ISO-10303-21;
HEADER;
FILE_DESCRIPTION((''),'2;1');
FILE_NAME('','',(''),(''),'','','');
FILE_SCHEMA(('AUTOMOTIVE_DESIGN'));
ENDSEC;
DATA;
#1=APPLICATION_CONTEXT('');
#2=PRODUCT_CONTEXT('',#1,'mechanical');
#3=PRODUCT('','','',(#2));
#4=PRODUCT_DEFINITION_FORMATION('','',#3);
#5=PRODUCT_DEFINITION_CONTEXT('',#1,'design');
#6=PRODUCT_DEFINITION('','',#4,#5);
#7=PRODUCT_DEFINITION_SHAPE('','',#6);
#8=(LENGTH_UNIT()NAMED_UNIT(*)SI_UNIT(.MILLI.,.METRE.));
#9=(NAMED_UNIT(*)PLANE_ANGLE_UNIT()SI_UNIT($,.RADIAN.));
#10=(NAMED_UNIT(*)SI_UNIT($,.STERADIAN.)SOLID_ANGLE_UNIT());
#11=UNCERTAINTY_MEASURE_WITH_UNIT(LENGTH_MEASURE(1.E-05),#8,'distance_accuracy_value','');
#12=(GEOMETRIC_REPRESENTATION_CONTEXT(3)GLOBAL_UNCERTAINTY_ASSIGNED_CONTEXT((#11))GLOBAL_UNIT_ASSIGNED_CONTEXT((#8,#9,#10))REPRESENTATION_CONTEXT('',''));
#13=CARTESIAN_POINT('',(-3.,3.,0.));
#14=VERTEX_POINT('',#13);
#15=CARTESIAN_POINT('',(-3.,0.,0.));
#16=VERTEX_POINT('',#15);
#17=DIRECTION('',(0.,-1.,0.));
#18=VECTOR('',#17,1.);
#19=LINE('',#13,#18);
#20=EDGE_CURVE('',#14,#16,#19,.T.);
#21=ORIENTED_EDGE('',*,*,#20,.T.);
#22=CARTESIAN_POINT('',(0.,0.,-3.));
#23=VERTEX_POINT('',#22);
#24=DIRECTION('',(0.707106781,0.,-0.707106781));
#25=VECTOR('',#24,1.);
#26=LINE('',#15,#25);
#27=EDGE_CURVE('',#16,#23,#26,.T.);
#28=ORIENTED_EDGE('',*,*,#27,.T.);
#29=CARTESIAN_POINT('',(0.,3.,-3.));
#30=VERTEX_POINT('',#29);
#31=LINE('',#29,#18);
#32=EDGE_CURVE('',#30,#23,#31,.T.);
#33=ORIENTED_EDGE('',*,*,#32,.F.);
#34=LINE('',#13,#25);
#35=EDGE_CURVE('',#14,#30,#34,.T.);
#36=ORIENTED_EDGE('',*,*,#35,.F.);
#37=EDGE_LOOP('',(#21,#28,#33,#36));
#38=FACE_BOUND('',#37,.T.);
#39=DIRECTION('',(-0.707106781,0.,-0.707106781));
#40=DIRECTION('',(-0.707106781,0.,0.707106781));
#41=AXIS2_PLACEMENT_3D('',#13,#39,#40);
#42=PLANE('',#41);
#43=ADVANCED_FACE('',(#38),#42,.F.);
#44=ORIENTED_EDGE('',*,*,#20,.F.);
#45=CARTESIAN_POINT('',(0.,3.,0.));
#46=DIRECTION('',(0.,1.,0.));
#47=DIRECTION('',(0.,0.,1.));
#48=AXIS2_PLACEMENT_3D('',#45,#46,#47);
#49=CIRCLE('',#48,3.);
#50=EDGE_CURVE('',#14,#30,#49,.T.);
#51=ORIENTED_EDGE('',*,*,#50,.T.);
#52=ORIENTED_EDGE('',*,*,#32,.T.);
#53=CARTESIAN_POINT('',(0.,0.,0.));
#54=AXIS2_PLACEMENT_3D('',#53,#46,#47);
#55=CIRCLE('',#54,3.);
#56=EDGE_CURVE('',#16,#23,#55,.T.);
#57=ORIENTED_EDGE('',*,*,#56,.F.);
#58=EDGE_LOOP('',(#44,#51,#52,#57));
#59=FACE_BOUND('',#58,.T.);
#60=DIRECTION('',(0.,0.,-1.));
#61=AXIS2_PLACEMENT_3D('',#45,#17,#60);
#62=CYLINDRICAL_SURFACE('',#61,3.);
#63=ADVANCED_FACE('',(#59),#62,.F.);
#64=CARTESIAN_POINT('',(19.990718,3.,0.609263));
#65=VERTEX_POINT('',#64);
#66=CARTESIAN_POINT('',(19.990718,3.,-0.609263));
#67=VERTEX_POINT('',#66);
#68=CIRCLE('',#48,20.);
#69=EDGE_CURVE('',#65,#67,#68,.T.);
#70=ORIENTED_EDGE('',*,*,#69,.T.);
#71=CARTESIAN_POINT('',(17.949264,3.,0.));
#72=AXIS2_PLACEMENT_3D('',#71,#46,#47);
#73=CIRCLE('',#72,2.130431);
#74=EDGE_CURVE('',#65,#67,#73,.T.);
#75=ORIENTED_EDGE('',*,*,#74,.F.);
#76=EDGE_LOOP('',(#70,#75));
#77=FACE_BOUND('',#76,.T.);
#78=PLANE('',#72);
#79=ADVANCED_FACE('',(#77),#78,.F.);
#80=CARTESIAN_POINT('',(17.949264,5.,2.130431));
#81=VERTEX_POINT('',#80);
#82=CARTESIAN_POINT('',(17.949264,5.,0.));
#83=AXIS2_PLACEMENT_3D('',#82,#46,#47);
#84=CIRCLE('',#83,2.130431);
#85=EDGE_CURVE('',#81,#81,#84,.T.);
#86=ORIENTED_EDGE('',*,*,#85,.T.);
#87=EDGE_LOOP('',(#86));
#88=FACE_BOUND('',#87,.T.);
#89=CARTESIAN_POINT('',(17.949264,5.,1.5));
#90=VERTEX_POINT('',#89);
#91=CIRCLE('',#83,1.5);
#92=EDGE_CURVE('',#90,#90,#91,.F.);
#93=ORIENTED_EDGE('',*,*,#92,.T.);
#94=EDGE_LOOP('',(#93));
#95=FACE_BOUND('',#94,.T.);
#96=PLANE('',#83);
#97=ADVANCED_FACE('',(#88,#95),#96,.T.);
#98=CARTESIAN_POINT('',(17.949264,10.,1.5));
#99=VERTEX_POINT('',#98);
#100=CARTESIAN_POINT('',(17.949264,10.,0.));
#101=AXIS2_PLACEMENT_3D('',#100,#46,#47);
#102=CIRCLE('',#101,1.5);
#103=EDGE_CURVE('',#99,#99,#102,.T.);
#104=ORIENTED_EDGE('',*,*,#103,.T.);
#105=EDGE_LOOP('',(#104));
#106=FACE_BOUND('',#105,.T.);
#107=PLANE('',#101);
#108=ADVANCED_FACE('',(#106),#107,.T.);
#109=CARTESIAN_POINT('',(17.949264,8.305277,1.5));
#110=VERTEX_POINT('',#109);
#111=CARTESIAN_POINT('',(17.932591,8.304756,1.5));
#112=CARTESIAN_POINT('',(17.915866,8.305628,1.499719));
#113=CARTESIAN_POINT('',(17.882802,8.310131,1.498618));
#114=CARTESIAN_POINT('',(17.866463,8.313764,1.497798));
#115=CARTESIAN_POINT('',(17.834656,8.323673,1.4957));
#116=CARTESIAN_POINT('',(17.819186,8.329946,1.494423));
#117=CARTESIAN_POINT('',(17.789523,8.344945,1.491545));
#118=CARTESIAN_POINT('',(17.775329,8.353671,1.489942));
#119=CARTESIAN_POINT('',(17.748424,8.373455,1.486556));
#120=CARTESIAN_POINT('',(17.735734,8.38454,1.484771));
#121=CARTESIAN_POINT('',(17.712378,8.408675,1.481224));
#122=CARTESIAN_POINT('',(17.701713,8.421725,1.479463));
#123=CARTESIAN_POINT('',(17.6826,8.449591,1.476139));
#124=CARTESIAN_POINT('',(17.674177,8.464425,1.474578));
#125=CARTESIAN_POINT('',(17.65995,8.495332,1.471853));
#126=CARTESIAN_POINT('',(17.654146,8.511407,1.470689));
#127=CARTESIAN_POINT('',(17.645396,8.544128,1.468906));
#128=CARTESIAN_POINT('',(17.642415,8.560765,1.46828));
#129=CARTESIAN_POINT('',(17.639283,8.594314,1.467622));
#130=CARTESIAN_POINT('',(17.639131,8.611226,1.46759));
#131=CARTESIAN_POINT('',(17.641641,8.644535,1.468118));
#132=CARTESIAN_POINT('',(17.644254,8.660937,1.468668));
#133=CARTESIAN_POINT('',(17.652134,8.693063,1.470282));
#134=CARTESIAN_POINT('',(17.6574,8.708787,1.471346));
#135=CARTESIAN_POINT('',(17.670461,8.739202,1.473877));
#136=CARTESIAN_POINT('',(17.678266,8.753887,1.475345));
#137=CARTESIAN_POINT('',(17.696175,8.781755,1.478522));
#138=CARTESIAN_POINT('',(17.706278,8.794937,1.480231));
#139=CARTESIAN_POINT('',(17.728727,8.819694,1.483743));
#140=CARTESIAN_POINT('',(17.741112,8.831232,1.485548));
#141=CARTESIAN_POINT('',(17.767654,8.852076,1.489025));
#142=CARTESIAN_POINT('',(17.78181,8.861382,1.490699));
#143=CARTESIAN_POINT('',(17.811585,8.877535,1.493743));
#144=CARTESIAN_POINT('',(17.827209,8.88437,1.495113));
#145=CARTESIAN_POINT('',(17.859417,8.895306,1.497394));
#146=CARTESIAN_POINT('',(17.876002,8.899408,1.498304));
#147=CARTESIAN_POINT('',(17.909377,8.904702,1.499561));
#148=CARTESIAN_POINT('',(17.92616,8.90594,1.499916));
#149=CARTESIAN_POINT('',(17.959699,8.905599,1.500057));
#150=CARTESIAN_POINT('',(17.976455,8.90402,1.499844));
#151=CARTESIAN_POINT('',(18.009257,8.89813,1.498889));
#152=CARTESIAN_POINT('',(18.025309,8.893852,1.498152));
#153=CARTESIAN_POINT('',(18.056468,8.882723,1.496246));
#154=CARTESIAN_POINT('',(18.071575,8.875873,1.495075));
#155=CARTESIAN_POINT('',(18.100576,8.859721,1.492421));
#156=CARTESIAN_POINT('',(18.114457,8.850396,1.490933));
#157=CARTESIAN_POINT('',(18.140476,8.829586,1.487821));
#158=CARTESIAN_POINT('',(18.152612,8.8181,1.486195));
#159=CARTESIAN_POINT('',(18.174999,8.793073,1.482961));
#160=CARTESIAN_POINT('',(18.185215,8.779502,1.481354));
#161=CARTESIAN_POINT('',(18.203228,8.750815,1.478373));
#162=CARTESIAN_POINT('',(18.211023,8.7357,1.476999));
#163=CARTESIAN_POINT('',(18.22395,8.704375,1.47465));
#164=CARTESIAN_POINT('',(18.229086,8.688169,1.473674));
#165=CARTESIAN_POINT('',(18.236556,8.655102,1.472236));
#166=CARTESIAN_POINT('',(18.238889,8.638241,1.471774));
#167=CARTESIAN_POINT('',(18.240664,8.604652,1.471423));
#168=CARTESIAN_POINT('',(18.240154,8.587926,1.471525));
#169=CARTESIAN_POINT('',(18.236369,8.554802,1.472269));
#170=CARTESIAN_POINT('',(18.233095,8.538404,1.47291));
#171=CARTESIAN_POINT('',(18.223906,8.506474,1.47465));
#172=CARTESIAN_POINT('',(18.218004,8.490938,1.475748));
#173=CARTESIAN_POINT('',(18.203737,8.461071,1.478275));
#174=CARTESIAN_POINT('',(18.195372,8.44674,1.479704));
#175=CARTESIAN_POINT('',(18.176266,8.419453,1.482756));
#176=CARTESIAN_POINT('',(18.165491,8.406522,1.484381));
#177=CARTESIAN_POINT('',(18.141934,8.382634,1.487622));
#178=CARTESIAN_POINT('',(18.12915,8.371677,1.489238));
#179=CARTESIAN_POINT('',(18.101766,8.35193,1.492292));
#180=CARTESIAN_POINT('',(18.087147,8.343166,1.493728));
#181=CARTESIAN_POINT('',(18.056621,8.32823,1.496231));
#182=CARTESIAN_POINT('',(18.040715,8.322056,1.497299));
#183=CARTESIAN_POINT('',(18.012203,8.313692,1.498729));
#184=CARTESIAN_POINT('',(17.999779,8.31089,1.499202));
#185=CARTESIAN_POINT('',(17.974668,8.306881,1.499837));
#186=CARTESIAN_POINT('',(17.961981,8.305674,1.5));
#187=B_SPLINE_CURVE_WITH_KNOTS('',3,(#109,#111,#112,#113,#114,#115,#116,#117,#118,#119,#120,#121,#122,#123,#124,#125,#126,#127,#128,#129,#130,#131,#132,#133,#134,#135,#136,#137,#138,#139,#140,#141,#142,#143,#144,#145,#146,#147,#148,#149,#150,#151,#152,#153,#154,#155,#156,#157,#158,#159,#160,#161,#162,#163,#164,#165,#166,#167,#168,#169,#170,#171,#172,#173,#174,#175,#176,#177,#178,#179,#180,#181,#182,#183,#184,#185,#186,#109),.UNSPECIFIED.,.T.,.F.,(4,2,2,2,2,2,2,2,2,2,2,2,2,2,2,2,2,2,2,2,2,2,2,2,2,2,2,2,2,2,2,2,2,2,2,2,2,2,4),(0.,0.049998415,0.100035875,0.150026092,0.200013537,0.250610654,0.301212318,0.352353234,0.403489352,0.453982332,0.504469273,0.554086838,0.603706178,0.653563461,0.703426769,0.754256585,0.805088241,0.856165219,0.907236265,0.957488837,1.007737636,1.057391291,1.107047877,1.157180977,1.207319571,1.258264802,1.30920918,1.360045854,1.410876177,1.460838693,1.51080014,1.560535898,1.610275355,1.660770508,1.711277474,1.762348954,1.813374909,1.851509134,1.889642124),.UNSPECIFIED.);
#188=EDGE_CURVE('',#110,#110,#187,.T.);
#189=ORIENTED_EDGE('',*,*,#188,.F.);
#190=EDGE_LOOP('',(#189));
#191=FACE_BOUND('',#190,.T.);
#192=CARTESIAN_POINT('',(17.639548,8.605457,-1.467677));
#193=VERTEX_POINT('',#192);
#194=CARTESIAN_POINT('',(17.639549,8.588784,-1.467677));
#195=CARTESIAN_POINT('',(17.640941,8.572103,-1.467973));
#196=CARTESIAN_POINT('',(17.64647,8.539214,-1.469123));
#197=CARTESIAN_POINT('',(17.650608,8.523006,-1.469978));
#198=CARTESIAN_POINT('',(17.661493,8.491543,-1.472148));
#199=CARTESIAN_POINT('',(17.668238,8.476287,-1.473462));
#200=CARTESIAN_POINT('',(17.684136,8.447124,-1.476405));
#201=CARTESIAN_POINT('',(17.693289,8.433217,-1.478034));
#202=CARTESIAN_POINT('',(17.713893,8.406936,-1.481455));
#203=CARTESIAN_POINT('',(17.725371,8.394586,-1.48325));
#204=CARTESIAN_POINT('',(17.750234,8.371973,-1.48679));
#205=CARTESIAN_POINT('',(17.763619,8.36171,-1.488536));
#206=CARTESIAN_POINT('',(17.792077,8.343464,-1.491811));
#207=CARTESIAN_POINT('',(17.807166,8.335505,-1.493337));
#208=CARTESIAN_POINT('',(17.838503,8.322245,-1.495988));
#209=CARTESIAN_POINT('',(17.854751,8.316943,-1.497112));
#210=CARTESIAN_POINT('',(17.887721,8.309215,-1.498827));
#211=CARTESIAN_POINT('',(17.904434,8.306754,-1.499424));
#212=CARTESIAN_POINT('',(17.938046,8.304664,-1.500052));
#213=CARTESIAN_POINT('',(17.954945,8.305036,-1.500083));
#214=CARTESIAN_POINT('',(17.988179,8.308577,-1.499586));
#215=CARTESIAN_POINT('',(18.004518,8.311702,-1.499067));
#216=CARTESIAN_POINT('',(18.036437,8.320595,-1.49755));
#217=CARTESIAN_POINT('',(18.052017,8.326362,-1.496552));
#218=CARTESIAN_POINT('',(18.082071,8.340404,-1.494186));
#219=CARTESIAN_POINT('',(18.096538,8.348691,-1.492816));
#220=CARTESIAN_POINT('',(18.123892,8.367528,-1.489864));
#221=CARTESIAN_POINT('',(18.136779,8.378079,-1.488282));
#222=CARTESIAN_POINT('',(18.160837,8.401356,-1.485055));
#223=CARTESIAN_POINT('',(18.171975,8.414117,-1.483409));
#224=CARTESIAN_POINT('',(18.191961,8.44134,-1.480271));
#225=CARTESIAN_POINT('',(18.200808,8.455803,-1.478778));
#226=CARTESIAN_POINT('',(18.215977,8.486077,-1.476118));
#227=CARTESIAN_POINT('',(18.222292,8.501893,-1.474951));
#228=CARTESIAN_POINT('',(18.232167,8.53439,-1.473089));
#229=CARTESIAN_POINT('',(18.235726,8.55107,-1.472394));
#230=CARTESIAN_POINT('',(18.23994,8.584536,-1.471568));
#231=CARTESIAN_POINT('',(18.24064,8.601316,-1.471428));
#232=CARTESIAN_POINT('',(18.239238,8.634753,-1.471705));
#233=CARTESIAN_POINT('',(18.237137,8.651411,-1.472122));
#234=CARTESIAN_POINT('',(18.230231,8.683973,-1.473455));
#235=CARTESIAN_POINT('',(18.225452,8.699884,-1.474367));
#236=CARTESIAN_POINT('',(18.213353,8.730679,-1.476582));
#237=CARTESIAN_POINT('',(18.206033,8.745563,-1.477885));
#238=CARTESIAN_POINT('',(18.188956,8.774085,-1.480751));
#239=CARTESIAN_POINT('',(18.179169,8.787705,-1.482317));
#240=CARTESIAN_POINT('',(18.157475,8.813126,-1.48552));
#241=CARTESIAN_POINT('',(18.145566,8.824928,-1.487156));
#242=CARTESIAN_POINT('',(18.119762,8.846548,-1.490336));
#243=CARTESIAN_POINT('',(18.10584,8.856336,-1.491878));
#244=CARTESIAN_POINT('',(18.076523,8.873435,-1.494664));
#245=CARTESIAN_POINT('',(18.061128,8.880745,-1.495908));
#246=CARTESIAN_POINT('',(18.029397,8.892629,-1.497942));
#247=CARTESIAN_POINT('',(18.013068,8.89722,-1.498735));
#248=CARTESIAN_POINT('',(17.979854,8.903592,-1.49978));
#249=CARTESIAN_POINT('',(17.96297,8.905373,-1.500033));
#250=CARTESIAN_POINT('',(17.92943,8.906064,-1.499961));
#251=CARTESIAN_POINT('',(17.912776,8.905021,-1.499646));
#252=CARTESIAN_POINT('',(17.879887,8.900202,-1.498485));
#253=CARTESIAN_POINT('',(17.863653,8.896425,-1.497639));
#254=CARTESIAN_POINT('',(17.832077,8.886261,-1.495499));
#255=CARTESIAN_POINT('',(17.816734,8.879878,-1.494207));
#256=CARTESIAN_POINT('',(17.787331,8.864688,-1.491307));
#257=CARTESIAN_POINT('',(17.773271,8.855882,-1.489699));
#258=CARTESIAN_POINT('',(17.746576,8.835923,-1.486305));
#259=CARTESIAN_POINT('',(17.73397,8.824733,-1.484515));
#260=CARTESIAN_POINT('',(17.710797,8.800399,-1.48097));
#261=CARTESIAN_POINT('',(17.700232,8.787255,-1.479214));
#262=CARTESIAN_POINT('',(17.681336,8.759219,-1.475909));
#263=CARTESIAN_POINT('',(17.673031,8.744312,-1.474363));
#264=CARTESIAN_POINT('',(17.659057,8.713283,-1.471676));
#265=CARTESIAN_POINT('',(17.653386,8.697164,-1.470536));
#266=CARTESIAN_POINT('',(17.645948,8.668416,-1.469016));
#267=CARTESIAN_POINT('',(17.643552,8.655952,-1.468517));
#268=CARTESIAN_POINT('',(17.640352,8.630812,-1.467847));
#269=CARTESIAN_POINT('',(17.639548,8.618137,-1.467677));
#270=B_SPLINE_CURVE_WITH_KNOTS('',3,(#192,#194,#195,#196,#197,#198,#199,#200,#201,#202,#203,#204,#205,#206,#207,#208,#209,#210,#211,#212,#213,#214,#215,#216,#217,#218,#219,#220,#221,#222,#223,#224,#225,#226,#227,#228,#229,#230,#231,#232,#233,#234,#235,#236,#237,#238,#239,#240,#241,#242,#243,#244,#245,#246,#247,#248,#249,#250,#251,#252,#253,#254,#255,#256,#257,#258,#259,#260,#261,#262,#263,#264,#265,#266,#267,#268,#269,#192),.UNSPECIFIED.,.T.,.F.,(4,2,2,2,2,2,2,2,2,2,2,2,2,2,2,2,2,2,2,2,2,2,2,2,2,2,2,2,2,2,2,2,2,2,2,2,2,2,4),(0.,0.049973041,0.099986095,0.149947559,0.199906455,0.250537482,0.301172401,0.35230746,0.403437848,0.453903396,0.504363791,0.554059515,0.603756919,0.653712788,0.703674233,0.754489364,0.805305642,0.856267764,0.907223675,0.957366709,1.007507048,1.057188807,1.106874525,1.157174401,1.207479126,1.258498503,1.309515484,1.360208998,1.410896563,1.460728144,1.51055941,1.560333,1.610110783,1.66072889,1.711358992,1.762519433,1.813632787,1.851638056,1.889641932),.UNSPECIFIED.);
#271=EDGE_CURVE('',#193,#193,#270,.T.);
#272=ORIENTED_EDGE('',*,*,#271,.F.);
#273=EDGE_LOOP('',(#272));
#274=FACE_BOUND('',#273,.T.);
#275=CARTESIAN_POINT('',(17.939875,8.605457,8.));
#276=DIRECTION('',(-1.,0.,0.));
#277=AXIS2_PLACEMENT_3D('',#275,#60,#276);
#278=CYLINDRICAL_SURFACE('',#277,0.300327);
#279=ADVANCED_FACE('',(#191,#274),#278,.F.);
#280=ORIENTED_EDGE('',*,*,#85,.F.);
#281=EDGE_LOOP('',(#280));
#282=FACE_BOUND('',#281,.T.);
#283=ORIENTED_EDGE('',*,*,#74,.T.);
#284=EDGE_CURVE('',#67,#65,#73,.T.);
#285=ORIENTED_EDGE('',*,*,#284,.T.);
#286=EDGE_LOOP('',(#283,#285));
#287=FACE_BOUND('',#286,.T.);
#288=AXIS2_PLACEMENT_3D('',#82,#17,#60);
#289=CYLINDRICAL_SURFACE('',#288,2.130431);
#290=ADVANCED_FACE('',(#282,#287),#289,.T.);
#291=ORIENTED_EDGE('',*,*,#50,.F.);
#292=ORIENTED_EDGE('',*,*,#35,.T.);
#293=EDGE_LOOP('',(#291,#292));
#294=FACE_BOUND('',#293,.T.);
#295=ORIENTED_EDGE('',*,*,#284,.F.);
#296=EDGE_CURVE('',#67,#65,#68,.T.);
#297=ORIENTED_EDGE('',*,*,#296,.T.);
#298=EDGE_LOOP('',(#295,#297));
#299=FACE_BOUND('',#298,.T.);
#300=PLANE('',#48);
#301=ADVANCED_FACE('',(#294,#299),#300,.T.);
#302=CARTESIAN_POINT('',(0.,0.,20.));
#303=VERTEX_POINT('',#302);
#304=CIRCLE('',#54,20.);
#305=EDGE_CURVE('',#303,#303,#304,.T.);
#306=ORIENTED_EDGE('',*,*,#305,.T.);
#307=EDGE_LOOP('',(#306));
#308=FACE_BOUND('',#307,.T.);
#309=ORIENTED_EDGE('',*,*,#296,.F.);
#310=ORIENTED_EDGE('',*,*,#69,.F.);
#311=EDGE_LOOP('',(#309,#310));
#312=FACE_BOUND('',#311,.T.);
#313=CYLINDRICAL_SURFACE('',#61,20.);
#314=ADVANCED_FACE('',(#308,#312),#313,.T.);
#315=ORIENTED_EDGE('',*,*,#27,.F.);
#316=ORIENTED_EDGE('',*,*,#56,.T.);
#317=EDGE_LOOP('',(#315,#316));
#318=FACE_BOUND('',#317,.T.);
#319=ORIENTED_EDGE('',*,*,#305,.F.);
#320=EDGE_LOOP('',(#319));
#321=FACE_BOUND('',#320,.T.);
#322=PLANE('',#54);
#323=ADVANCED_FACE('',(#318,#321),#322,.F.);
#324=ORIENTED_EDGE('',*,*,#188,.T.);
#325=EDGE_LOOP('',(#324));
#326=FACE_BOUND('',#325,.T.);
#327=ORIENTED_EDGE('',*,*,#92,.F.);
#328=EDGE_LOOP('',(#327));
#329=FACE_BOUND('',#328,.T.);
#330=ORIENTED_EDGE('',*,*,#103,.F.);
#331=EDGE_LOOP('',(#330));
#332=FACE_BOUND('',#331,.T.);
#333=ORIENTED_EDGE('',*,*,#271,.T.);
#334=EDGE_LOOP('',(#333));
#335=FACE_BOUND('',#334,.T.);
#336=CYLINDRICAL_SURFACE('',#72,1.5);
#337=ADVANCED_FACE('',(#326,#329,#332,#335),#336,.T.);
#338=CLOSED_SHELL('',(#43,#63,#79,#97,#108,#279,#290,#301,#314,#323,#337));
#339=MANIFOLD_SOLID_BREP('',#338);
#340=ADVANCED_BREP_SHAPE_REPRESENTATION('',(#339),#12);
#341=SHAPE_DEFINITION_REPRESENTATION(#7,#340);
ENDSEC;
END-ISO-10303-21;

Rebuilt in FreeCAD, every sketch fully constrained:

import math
import FreeCAD as App
import Part
import Sketcher
from FreeCAD import Vector

doc = App.newDocument("Part")
params = doc.addObject("Spreadsheet::Sheet", "Params")
for row, (alias, value) in enumerate([
    ("sketch1_diameter", "40 mm"),
    ("sketch1_diameter2", "6 mm"),
    ("pad1_length", "3 mm"),
    ("sketch2_diameter", "3 mm"),
    ("pad2_length", "7 mm"),
    ("sketch4_radius", "3 mm"),
    ("pad3_length", "3 mm"),
    ("pad4_length", "2 mm"),
], start=1):
    params.set(f"A{row}", alias)
    params.set(f"B{row}", "=" + value)
    params.setAlias(f"B{row}", alias)

body = doc.addObject("PartDesign::Body", "Body")

sketch1 = body.newObject("Sketcher::SketchObject", "Sketch")
sketch1.AttachmentSupport = (doc.getObject("XZ_Plane"), [""])
sketch1.MapMode = "FlatFace"
sketch1.addGeometry([
    Part.Circle(Vector(0, 0, 0), Vector(0, 0, 1), 20),
    Part.Circle(Vector(0, 0, 0), Vector(0, 0, 1), 3),
], False)
sketch1.addConstraint([
    Sketcher.Constraint("Coincident", 0, 3, -1, 1),
    Sketcher.Constraint("Coincident", 1, 3, -1, 1),
    Sketcher.Constraint("Diameter", 0, 40.0),
    Sketcher.Constraint("Diameter", 1, 6.0),
])
sketch1.setExpression("Constraints[2]", "Params.sketch1_diameter")
sketch1.setExpression("Constraints[3]", "Params.sketch1_diameter2")
pad1 = body.newObject("PartDesign::Pad", "Pad")
pad1.Profile = sketch1
pad1.setExpression("Length", "Params.pad1_length")
pad1.Reversed = True

sketch2 = body.newObject("Sketcher::SketchObject", "Sketch001")
sketch2.AttachmentSupport = (doc.getObject("XZ_Plane"), [""])
sketch2.MapMode = "FlatFace"
sketch2.AttachmentOffset = App.Placement(Vector(0, 0, -3), App.Rotation())
sketch2.addGeometry(Part.Circle(Vector(17.9, 0, 0), Vector(0, 0, 1), 1.5), False)
sketch2.addConstraint([
    Sketcher.Constraint("PointOnObject", 0, 3, -1),
    Sketcher.Constraint("Diameter", 0, 3.0),
    Sketcher.Constraint("DistanceX", -1, 1, 0, 3, 17.949264),
])
sketch2.setExpression("Constraints[1]", "Params.sketch2_diameter")
pad2 = body.newObject("PartDesign::Pad", "Pad001")
pad2.Profile = sketch2
pad2.setExpression("Length", "Params.pad2_length")
pad2.Reversed = True

sketch3 = body.newObject("Sketcher::SketchObject", "Sketch002")
sketch3.AttachmentSupport = (doc.getObject("XY_Plane"), [""])
sketch3.MapMode = "FlatFace"
sketch3.addGeometry(Part.Circle(Vector(17.94, 8.61, 0), Vector(0, 0, 1), 0.3), False)
sketch3.addConstraint([
    Sketcher.Constraint("Diameter", 0, 0.600655),
    Sketcher.Constraint("DistanceX", -1, 1, 0, 3, 17.939875),
    Sketcher.Constraint("DistanceY", -1, 1, 0, 3, 8.605457),
])
pocket1 = body.newObject("PartDesign::Pocket", "Pocket")
pocket1.Profile = sketch3
pocket1.Type = "ThroughAll"
pocket1.Midplane = True

sketch4 = body.newObject("Sketcher::SketchObject", "Sketch003")
sketch4.AttachmentSupport = (doc.getObject("XZ_Plane"), [""])
sketch4.MapMode = "FlatFace"
sketch4.addGeometry([
    Part.LineSegment(Vector(-3, 0, 0), Vector(0, -3, 0)),
    Part.ArcOfCircle(Part.Circle(Vector(0, 0, 0), Vector(0, 0, 1), 3), math.radians(180), math.radians(270)),
], False)
sketch4.addConstraint([
    Sketcher.Constraint("Coincident", 0, 1, 1, 1),
    Sketcher.Constraint("Coincident", 1, 2, 0, 2),
    Sketcher.Constraint("Coincident", 1, 3, -1, 1),
    Sketcher.Constraint("PointOnObject", 0, 1, -1),
    Sketcher.Constraint("PointOnObject", 1, 2, -2),
    Sketcher.Constraint("Radius", 1, 3.0),
])
sketch4.setExpression("Constraints[5]", "Params.sketch4_radius")
pad3 = body.newObject("PartDesign::Pad", "Pad002")
pad3.Profile = sketch4
pad3.setExpression("Length", "Params.pad3_length")
pad3.Reversed = True

sketch5 = body.newObject("Sketcher::SketchObject", "Sketch004")
sketch5.AttachmentSupport = (doc.getObject("XZ_Plane"), [""])
sketch5.MapMode = "FlatFace"
sketch5.AttachmentOffset = App.Placement(Vector(0, 0, -3), App.Rotation())
sketch5.addGeometry(Part.Circle(Vector(17.9, 0, 0), Vector(0, 0, 1), 2.1), False)
sketch5.addConstraint([
    Sketcher.Constraint("PointOnObject", 0, 3, -1),
    Sketcher.Constraint("Diameter", 0, 4.260861),
    Sketcher.Constraint("DistanceX", -1, 1, 0, 3, 17.949264),
])
pad4 = body.newObject("PartDesign::Pad", "Pad003")
pad4.Profile = sketch5
pad4.setExpression("Length", "Params.pad4_length")
pad4.Reversed = True

doc.recompute()
